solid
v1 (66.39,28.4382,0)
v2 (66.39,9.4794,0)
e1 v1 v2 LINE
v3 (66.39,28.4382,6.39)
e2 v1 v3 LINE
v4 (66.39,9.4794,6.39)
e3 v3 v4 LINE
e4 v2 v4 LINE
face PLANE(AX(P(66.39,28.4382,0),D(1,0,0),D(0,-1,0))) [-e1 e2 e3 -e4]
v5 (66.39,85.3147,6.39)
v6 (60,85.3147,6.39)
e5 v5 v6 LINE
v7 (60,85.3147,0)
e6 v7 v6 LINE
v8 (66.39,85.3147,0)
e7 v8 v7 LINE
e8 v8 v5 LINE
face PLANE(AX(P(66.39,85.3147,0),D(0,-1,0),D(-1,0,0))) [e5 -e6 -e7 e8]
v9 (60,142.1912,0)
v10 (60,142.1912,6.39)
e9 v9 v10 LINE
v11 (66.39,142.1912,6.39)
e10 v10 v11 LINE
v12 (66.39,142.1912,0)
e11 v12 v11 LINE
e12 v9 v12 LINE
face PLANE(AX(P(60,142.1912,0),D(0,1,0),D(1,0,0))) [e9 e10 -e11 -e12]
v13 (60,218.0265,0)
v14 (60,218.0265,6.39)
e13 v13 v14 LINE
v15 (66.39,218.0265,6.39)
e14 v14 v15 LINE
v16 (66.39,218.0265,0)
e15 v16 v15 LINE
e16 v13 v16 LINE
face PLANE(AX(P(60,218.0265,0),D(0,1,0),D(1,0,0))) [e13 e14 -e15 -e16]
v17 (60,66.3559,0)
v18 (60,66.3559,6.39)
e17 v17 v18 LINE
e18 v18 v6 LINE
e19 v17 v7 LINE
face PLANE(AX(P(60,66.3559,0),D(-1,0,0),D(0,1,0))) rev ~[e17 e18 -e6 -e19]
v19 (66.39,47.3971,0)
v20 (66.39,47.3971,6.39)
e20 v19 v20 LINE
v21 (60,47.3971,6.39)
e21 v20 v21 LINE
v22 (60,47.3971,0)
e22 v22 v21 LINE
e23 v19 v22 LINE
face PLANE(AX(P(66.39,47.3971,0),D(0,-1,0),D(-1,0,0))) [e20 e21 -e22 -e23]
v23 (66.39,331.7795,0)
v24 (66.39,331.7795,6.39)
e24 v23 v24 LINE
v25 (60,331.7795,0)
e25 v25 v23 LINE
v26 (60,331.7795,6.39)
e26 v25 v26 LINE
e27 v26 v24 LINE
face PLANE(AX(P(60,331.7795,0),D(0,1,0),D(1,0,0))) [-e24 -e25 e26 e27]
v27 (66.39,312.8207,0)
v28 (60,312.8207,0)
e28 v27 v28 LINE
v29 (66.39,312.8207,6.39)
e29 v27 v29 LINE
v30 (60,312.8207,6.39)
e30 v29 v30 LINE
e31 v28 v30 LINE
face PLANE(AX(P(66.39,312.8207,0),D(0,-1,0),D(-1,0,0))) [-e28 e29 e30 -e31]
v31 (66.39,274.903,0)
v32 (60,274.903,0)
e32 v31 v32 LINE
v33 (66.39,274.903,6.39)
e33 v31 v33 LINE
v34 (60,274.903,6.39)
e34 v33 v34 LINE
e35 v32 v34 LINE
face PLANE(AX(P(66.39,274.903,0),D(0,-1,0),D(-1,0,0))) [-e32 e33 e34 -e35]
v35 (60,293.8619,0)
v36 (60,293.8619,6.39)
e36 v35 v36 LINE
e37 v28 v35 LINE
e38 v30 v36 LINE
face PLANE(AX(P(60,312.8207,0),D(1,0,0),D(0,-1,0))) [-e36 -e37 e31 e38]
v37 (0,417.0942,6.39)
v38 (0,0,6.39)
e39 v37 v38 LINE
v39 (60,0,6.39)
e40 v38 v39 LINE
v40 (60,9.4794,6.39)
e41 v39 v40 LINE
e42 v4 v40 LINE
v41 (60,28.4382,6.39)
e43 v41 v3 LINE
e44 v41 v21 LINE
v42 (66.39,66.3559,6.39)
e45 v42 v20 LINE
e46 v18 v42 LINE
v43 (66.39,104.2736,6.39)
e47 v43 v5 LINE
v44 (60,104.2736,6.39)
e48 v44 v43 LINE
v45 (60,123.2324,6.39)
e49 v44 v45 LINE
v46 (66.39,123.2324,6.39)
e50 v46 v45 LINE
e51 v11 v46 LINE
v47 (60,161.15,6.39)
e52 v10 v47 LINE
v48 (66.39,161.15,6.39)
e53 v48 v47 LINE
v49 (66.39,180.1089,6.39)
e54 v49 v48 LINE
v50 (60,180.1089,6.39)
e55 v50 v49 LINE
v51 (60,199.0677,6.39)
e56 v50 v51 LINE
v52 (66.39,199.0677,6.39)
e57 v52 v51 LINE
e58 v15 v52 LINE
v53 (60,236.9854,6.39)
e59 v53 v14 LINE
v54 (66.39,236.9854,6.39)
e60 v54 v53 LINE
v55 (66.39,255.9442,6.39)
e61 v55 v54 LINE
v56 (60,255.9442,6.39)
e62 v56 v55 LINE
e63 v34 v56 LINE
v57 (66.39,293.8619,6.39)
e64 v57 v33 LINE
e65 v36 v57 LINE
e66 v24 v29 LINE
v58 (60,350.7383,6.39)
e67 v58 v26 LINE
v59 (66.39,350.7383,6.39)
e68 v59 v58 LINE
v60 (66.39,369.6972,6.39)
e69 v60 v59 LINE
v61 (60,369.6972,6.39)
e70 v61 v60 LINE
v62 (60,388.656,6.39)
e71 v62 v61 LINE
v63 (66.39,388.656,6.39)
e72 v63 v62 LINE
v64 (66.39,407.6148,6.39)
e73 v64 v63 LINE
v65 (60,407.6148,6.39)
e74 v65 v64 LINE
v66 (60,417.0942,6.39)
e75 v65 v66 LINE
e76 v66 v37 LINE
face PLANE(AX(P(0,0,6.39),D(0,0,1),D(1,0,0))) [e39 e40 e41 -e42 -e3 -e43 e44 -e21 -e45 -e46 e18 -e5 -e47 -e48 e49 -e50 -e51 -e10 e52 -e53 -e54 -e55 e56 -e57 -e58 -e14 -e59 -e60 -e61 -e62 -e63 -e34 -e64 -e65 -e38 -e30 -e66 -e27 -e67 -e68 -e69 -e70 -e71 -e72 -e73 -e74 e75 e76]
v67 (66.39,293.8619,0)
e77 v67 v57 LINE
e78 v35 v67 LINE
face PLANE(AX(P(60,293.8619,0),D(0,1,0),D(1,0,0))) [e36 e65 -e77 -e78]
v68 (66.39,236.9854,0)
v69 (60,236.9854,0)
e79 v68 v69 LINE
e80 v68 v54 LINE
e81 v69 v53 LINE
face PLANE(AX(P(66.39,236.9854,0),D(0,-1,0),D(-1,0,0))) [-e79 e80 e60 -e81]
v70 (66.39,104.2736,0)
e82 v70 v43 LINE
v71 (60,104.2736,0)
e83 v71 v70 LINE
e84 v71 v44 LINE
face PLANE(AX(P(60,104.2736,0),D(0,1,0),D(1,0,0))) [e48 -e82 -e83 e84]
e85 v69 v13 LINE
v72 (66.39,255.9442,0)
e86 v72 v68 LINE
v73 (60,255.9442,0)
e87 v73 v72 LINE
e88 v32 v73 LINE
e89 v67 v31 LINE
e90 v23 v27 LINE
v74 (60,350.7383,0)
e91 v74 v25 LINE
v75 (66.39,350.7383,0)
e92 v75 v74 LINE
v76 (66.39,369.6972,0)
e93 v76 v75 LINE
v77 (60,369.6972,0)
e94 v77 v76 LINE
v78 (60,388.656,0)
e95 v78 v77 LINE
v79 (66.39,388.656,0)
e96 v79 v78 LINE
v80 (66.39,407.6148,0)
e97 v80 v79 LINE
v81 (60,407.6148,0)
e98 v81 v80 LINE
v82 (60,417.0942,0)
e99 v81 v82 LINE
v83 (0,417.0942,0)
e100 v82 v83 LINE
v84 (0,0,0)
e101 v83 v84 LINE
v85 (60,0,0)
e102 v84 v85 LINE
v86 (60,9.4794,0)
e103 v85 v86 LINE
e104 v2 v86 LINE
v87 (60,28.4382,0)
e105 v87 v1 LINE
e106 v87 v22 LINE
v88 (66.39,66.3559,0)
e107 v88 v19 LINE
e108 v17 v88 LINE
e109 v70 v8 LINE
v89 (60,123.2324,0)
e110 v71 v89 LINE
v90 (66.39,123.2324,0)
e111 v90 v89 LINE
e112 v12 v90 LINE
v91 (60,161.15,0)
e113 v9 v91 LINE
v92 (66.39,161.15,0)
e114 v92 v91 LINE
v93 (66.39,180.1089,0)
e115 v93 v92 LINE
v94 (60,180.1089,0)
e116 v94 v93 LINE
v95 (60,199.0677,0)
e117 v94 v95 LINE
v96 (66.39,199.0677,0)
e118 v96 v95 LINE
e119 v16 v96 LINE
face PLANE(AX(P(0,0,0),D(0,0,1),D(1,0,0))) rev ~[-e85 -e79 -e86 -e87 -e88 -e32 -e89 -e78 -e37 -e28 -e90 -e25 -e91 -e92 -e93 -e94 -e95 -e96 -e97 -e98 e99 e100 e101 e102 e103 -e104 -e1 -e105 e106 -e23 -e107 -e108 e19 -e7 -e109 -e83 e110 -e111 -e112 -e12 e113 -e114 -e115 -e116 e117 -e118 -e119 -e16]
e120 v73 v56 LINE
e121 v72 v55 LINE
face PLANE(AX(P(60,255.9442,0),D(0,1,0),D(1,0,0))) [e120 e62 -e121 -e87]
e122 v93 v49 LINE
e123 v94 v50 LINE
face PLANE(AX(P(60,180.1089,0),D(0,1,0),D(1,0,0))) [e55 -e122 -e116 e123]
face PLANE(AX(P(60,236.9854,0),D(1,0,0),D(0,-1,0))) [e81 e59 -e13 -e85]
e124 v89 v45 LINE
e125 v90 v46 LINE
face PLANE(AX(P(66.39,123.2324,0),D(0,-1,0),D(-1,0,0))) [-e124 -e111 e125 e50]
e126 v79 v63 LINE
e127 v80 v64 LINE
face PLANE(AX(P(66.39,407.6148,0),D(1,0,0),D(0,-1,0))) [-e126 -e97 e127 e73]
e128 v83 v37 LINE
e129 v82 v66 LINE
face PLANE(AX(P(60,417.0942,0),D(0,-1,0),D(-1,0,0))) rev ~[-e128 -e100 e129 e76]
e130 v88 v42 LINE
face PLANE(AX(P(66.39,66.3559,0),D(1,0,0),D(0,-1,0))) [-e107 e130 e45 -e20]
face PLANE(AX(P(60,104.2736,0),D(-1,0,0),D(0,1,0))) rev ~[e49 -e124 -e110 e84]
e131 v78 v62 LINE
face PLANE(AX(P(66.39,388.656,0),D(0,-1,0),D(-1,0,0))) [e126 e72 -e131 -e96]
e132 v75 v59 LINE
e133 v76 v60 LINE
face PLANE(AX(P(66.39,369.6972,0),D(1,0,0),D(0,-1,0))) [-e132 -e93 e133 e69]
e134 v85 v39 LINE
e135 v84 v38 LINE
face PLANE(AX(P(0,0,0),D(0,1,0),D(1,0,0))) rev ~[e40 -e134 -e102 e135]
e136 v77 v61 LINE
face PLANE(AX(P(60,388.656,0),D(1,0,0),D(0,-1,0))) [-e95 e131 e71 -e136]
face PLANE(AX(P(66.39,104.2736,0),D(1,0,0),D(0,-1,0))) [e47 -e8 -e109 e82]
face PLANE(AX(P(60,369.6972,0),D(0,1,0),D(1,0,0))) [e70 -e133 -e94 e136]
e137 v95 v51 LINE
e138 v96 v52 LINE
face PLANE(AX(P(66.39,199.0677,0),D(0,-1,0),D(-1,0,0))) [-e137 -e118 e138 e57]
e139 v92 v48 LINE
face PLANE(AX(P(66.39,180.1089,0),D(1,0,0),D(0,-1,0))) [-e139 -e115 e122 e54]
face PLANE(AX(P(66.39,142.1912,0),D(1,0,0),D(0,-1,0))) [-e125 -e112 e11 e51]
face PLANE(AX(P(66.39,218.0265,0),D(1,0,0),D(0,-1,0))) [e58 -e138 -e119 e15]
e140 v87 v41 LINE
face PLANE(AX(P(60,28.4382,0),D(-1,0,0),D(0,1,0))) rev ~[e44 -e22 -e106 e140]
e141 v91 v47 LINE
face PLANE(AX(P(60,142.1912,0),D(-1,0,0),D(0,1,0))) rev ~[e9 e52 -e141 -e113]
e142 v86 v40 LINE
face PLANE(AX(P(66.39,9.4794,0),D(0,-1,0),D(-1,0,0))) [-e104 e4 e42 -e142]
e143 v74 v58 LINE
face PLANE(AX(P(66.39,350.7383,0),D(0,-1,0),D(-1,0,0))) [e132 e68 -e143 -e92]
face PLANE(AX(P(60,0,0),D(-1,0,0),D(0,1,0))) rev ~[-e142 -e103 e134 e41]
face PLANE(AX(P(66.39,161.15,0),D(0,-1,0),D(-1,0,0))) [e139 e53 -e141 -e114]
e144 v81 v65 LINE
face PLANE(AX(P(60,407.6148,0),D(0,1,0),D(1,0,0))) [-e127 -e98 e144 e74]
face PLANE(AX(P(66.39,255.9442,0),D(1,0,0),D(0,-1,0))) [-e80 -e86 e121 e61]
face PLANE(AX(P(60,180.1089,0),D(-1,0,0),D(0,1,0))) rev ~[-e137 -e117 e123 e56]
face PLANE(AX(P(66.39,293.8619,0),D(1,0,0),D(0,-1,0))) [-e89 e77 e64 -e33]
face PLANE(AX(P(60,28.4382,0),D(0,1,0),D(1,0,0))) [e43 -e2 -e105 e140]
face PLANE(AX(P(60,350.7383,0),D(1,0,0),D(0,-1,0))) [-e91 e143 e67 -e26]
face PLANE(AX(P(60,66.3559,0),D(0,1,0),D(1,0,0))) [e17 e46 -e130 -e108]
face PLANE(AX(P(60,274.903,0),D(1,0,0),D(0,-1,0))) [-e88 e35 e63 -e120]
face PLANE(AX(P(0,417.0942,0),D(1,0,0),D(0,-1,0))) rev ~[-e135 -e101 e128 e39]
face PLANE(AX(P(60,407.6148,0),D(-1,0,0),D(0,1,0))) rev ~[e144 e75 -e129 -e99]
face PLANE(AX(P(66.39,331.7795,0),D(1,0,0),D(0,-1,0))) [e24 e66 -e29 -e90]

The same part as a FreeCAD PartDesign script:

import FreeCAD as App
import Part
import Sketcher

V = App.Vector


def add_polygon(sketch, points):
    """Adds a closed chain of lines whose ends are joined by coincident constraints."""
    first, n = sketch.GeometryCount, len(points)
    for a, b in zip(points, points[1:] + points[:1]):
        sketch.addGeometry(Part.LineSegment(App.Vector(*a, 0), App.Vector(*b, 0)), False)
    for i in range(n):
        sketch.addConstraint(Sketcher.Constraint("Coincident", first + i, 2, first + (i + 1) % n, 1))

doc = App.newDocument("Part")
body = doc.addObject("PartDesign::Body", "Body")

# Sketch on XY plane
sketch1 = body.newObject("Sketcher::SketchObject", "Sketch")
sketch1.AttachmentSupport = (doc.getObject("XY_Plane"), [""])
sketch1.MapMode = "FlatFace"
add_polygon(sketch1, [(66.39, 28.4382), (60, 28.4382), (60, 47.3971), (66.39, 47.3971), (66.39, 66.3559), (60, 66.3559), (60, 85.3147), (66.39, 85.3147), (66.39, 104.2736), (60, 104.2736), (60, 123.2324), (66.39, 123.2324), (66.39, 142.1912), (60, 142.1912), (60, 161.15), (66.39, 161.15), (66.39, 180.1089), (60, 180.1089), (60, 199.0677), (66.39, 199.0677), (66.39, 218.0265), (60, 218.0265), (60, 236.9854), (66.39, 236.9854), (66.39, 255.9442), (60, 255.9442), (60, 274.903), (66.39, 274.903), (66.39, 293.8619), (60, 293.8619), (60, 312.8207), (66.39, 312.8207), (66.39, 331.7795), (60, 331.7795), (60, 350.7383), (66.39, 350.7383), (66.39, 369.6972), (60, 369.6972), (60, 388.656), (66.39, 388.656), (66.39, 407.6148), (60, 407.6148), (60, 417.0942), (0, 417.0942), (0, 0), (60, 0), (60, 9.4794), (66.39, 9.4794)])  # lines 0-47
sketch1.addConstraint([
    Sketcher.Constraint("Horizontal", 0),
    Sketcher.Constraint("Vertical", 1),
    Sketcher.Constraint("Horizontal", 2),
    Sketcher.Constraint("Vertical", 3),
    Sketcher.Constraint("Horizontal", 4),
    Sketcher.Constraint("Vertical", 5),
    Sketcher.Constraint("Horizontal", 6),
    Sketcher.Constraint("Vertical", 7),
    Sketcher.Constraint("Horizontal", 8),
    Sketcher.Constraint("Vertical", 9),
    Sketcher.Constraint("Horizontal", 10),
    Sketcher.Constraint("Vertical", 11),
    Sketcher.Constraint("Horizontal", 12),
    Sketcher.Constraint("Vertical", 13),
    Sketcher.Constraint("Horizontal", 14),
    Sketcher.Constraint("Vertical", 15),
    Sketcher.Constraint("Horizontal", 16),
    Sketcher.Constraint("Vertical", 17),
    Sketcher.Constraint("Horizontal", 18),
    Sketcher.Constraint("Vertical", 19),
    Sketcher.Constraint("Horizontal", 20),
    Sketcher.Constraint("Vertical", 21),
    Sketcher.Constraint("Horizontal", 22),
    Sketcher.Constraint("Vertical", 23),
    Sketcher.Constraint("Horizontal", 24),
    Sketcher.Constraint("Vertical", 25),
    Sketcher.Constraint("Horizontal", 26),
    Sketcher.Constraint("Vertical", 27),
    Sketcher.Constraint("Horizontal", 28),
    Sketcher.Constraint("Vertical", 29),
    Sketcher.Constraint("Horizontal", 30),
    Sketcher.Constraint("Vertical", 31),
    Sketcher.Constraint("Horizontal", 32),
    Sketcher.Constraint("Vertical", 33),
    Sketcher.Constraint("Horizontal", 34),
    Sketcher.Constraint("Vertical", 35),
    Sketcher.Constraint("Horizontal", 36),
    Sketcher.Constraint("Vertical", 37),
    Sketcher.Constraint("Horizontal", 38),
    Sketcher.Constraint("Vertical", 39),
    Sketcher.Constraint("Horizontal", 40),
    Sketcher.Constraint("Vertical", 41),
    Sketcher.Constraint("Horizontal", 42),
    Sketcher.Constraint("Vertical", 43),
    Sketcher.Constraint("Horizontal", 44),
    Sketcher.Constraint("Vertical", 45),
    Sketcher.Constraint("Horizontal", 46),
    Sketcher.Constraint("Vertical", 47),
    Sketcher.Constraint("Coincident", 43, 2, -1, 1),
    Sketcher.Constraint("DistanceX", 42, 2, 42, 1, 60.0),
    Sketcher.Constraint("DistanceX", 44, 1, 44, 2, 60.0),
    Sketcher.Constraint("DistanceX", -1, 1, 0, 2, 60.0),
    Sketcher.Constraint("DistanceX", -1, 1, 4, 2, 60.0),
    Sketcher.Constraint("DistanceX", -1, 1, 8, 2, 60.0),
    Sketcher.Constraint("DistanceX", -1, 1, 12, 2, 60.0),
    Sketcher.Constraint("DistanceX", -1, 1, 16, 2, 60.0),
    Sketcher.Constraint("DistanceX", -1, 1, 20, 2, 60.0),
    Sketcher.Constraint("DistanceX", -1, 1, 24, 2, 60.0),
    Sketcher.Constraint("DistanceX", -1, 1, 28, 2, 60.0),
    Sketcher.Constraint("DistanceX", -1, 1, 32, 2, 60.0),
    Sketcher.Constraint("DistanceX", -1, 1, 36, 2, 60.0),
    Sketcher.Constraint("DistanceX", 0, 2, 0, 1, 6.39),
    Sketcher.Constraint("DistanceX", 2, 1, 2, 2, 6.39),
    Sketcher.Constraint("DistanceX", 6, 1, 6, 2, 6.39),
    Sketcher.Constraint("DistanceX", 10, 1, 10, 2, 6.39),
    Sketcher.Constraint("DistanceX", 14, 1, 14, 2, 6.39),
    Sketcher.Constraint("DistanceX", 18, 1, 18, 2, 6.39),
    Sketcher.Constraint("DistanceX", 22, 1, 22, 2, 6.39),
    Sketcher.Constraint("DistanceX", 26, 1, 26, 2, 6.39),
    Sketcher.Constraint("DistanceX", 30, 1, 30, 2, 6.39),
    Sketcher.Constraint("DistanceX", 34, 1, 34, 2, 6.39),
    Sketcher.Constraint("DistanceX", 38, 1, 38, 2, 6.39),
    Sketcher.Constraint("DistanceY", 1, 1, 1, 2, 18.959),
    Sketcher.Constraint("DistanceY", 7, 1, 7, 2, 18.959),
    Sketcher.Constraint("DistanceY", 15, 1, 15, 2, 18.959),
    Sketcher.Constraint("DistanceY", 21, 1, 21, 2, 18.959),
    Sketcher.Constraint("DistanceY", 27, 1, 27, 2, 18.959),
    Sketcher.Constraint("DistanceY", 35, 1, 35, 2, 18.959),
    Sketcher.Constraint("DistanceY", 3, 1, 3, 2, 18.9588),
    Sketcher.Constraint("DistanceY", 5, 1, 5, 2, 18.9588),
    Sketcher.Constraint("DistanceY", 9, 1, 9, 2, 18.9588),
    Sketcher.Constraint("DistanceY", 11, 1, 11, 2, 18.9588),
    Sketcher.Constraint("DistanceY", 13, 1, 13, 2, 18.9588),
    Sketcher.Constraint("DistanceY", 17, 1, 17, 2, 18.9588),
    Sketcher.Constraint("DistanceY", 19, 1, 19, 2, 18.9588),
    Sketcher.Constraint("DistanceY", 23, 1, 23, 2, 18.9588),
    Sketcher.Constraint("DistanceY", 25, 1, 25, 2, 18.9588),
    Sketcher.Constraint("DistanceY", 29, 1, 29, 2, 18.9588),
    Sketcher.Constraint("DistanceY", 31, 1, 31, 2, 18.9588),
    Sketcher.Constraint("DistanceY", 33, 1, 33, 2, 18.9588),
    Sketcher.Constraint("DistanceY", 37, 1, 37, 2, 18.9588),
    Sketcher.Constraint("DistanceY", 39, 1, 39, 2, 18.9588),
    Sketcher.Constraint("DistanceY", 41, 1, 41, 2, 9.4794),
    Sketcher.Constraint("DistanceY", 43, 2, 43, 1, 417.0942),
    Sketcher.Constraint("DistanceY", 45, 1, 45, 2, 9.4794),
])
pad1 = body.newObject("PartDesign::Pad", "Pad")
pad1.Profile = sketch1
pad1.Length = 6.39

doc.recompute()
